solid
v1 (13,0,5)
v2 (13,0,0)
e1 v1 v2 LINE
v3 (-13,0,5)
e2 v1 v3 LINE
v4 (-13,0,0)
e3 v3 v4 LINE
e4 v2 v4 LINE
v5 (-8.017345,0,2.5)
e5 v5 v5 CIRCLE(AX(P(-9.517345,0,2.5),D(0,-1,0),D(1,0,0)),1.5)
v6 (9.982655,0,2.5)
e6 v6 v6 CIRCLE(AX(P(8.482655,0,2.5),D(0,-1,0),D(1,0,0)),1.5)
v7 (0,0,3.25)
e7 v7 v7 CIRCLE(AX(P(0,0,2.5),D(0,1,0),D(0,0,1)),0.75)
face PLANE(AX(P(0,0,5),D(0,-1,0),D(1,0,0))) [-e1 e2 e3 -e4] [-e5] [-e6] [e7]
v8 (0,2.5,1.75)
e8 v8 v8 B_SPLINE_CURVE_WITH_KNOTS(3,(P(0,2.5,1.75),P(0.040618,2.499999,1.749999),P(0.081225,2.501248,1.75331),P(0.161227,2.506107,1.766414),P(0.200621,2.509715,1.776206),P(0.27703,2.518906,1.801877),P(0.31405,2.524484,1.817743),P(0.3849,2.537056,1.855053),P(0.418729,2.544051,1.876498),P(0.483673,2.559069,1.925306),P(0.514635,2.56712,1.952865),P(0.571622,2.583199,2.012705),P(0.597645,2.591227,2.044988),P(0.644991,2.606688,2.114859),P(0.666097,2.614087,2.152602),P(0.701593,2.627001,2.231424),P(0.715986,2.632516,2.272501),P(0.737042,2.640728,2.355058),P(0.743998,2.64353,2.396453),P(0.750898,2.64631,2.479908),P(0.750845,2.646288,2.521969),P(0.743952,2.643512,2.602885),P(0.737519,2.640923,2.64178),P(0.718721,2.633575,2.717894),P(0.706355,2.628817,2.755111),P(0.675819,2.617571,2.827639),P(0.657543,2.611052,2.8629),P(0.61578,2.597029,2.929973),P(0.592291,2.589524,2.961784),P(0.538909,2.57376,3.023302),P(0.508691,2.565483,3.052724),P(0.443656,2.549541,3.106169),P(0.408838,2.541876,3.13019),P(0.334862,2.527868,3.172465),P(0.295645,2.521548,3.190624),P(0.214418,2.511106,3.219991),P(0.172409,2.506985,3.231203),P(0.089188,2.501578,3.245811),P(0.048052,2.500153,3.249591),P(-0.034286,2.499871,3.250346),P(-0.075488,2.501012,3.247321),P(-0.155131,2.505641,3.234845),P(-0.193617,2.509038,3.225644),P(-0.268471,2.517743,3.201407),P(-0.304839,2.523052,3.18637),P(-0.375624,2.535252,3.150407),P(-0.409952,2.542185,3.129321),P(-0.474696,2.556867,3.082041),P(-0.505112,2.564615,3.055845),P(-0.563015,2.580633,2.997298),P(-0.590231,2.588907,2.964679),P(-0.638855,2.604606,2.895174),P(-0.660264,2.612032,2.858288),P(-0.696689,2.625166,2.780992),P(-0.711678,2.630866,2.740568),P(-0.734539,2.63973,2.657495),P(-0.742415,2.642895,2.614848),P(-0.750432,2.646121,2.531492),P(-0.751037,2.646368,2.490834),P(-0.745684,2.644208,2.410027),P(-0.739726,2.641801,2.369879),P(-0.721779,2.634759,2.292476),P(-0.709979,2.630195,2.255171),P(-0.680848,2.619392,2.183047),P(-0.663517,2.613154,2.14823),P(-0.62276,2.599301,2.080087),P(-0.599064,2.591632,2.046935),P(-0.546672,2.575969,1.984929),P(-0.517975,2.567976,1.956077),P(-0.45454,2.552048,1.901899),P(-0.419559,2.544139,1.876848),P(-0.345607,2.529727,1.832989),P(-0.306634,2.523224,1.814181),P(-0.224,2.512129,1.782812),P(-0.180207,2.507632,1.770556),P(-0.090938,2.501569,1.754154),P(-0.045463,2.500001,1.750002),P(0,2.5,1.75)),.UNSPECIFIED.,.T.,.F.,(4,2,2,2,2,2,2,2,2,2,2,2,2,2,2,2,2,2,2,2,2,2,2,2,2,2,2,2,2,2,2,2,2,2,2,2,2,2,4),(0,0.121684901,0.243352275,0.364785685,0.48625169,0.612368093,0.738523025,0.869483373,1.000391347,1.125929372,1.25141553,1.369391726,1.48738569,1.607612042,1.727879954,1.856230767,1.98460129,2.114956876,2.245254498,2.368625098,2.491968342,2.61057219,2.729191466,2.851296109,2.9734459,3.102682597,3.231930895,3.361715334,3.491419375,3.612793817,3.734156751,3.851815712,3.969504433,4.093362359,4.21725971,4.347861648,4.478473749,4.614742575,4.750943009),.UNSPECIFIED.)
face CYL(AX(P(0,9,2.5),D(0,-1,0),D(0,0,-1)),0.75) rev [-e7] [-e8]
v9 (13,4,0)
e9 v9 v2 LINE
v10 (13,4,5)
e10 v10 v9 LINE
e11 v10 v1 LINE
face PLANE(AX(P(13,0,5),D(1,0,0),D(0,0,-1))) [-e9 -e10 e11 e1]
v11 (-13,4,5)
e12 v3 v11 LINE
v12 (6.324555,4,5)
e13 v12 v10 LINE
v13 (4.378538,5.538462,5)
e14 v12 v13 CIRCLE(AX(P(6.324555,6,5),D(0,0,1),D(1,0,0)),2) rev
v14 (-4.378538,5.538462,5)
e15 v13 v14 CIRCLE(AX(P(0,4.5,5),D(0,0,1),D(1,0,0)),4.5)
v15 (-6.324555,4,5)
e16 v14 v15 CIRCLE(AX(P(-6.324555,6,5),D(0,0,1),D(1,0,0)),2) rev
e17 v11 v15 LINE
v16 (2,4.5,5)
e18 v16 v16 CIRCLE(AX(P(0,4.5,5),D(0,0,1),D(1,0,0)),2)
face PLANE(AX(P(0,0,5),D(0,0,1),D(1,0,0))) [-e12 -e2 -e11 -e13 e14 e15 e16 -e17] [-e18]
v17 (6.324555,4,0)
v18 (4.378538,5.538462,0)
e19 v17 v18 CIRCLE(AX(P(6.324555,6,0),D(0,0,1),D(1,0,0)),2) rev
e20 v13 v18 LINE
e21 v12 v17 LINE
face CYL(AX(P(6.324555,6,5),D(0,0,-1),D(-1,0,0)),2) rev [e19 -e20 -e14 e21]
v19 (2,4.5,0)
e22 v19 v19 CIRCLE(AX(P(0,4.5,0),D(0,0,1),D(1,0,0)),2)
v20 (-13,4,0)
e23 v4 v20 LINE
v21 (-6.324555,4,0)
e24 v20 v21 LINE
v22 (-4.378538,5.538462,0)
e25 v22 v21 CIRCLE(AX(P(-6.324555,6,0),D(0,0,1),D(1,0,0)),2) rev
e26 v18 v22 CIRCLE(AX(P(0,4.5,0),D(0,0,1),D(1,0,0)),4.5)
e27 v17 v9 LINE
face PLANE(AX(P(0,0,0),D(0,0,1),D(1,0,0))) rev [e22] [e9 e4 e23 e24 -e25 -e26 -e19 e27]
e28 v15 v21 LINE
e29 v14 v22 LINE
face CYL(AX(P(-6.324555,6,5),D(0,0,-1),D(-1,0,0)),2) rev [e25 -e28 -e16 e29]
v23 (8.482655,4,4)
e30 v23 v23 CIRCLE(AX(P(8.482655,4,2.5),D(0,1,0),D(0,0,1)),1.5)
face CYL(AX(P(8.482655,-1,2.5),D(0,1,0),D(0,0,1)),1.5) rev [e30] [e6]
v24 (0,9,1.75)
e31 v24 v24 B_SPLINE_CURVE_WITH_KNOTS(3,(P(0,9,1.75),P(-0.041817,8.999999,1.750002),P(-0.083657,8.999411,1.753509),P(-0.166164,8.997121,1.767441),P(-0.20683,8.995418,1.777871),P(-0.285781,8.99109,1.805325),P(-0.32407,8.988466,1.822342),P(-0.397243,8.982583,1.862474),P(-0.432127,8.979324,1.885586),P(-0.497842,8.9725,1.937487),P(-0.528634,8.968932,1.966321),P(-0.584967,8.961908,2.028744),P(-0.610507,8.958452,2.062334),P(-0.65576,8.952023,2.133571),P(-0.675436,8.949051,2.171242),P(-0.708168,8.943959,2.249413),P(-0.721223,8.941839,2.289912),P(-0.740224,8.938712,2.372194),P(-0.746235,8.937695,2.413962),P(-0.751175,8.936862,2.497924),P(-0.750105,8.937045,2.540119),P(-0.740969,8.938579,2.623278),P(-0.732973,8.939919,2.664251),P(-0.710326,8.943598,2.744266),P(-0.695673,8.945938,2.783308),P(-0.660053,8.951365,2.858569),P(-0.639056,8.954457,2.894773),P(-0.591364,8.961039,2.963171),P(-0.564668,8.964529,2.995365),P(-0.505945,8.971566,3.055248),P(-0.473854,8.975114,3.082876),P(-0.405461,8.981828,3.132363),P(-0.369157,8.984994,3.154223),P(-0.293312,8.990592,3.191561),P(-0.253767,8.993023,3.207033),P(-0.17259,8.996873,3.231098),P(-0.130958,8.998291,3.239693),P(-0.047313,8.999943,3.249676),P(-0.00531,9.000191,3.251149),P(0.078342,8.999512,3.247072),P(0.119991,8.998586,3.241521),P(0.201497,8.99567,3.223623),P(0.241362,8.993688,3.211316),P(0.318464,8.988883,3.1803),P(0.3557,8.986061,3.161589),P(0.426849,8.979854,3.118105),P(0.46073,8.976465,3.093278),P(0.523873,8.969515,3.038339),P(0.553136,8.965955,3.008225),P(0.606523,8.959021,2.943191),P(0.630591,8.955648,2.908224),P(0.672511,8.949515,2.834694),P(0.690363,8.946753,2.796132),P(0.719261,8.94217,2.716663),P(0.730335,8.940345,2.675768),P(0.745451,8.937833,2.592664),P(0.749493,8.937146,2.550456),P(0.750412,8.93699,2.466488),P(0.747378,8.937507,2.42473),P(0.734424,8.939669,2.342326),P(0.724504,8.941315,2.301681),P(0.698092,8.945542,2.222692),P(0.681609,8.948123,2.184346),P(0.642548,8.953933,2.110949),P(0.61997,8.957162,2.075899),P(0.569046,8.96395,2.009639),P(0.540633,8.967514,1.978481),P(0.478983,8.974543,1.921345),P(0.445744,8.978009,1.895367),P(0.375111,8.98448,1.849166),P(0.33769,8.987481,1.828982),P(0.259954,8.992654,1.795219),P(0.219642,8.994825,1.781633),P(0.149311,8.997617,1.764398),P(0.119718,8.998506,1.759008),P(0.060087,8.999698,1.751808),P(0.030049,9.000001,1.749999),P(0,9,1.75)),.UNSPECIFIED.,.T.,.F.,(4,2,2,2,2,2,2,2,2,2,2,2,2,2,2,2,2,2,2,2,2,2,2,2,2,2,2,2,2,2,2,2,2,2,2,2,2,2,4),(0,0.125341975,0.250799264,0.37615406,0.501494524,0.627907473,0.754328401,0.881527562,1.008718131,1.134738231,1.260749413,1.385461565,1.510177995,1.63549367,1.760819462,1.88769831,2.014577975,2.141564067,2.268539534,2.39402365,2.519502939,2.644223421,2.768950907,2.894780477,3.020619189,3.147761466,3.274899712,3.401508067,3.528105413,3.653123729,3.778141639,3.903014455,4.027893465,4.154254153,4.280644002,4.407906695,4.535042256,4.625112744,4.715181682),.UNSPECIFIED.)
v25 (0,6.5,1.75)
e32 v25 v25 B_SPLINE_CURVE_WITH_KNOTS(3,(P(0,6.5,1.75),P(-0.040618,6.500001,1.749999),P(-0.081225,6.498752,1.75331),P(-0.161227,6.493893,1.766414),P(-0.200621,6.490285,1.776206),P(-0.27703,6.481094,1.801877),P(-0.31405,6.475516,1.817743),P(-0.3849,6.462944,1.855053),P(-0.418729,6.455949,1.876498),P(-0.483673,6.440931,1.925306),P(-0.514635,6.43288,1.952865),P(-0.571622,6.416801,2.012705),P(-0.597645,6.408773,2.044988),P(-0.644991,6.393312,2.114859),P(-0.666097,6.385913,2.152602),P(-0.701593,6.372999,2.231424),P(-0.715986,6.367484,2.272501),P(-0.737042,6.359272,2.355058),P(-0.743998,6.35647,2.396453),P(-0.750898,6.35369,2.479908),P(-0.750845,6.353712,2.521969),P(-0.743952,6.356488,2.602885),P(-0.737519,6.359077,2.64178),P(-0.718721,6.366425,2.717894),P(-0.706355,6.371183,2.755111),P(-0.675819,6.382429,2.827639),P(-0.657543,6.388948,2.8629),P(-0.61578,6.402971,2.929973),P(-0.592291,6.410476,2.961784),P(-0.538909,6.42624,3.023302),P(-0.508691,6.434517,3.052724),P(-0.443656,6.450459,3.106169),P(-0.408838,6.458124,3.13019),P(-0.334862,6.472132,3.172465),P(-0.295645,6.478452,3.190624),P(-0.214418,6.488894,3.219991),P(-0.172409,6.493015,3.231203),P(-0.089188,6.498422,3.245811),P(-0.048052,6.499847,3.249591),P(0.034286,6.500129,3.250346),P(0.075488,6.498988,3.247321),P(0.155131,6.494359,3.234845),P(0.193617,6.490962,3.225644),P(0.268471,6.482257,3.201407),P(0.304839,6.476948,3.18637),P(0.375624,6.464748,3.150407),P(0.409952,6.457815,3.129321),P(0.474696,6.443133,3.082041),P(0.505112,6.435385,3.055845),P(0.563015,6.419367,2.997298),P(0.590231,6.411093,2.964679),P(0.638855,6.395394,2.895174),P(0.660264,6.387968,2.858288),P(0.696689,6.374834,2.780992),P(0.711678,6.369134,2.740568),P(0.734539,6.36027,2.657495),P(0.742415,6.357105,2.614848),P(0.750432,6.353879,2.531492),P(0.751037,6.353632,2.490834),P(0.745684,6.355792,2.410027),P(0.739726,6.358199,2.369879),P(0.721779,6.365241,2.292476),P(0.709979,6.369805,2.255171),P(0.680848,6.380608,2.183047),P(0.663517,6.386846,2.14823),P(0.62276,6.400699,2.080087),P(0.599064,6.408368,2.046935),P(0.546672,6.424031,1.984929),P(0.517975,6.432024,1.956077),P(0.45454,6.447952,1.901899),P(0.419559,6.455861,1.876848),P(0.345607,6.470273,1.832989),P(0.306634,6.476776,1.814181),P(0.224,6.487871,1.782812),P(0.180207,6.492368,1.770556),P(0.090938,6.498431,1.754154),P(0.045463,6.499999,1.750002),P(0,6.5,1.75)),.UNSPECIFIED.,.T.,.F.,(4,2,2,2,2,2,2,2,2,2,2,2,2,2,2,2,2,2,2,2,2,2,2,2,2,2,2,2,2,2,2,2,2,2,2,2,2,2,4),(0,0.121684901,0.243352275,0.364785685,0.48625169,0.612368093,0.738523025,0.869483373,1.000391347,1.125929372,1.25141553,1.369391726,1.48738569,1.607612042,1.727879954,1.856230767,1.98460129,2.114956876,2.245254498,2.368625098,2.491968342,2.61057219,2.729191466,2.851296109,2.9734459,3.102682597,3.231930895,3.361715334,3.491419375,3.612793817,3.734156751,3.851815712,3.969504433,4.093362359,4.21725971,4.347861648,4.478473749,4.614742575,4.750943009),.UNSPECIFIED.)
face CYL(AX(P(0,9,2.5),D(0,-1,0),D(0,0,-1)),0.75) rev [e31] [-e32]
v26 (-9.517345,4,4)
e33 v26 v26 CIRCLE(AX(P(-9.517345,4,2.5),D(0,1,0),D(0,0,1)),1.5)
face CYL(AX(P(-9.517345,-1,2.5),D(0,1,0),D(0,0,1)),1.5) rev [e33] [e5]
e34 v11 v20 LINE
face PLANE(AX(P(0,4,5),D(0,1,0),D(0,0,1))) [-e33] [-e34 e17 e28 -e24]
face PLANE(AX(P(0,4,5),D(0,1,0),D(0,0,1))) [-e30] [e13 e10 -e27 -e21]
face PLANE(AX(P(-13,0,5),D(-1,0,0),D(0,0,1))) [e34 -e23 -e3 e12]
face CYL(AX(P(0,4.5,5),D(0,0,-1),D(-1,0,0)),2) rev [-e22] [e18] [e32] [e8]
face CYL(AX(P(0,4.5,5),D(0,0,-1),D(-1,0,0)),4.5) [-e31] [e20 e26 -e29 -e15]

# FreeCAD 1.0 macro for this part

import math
import FreeCAD as App
import Part
import Sketcher

V = App.Vector
Q = App.Units.Quantity

doc = App.newDocument("Part")
body = doc.addObject("PartDesign::Body", "Body")

# Sketch on XY plane
sketch1 = body.newObject("Sketcher::SketchObject", "Sketch")
sketch1.AttachmentSupport = (doc.getObject("XY_Plane"), [""])
sketch1.MapMode = "FlatFace"
sketch1.addGeometry([
    Part.LineSegment(V(-13, 0, 0), V(13, 0, 0)),  # 0
    Part.LineSegment(V(13, 0, 0), V(13, 4, 0)),  # 1
    Part.LineSegment(V(13, 4, 0), V(6.3, 4, 0)),  # 2
    Part.ArcOfCircle(Part.Circle(V(6.3, 6, 0), V(0, 0, 1), 2), math.radians(-167), math.radians(-90)),  # 3
    Part.ArcOfCircle(Part.Circle(V(0, 4.5, 0), V(0, 0, 1), 4.5), math.radians(13), math.radians(90)),  # 4
    Part.ArcOfCircle(Part.Circle(V(0, 4.5, 0), V(0, 0, 1), 4.5), math.radians(90), math.radians(167)),  # 5
    Part.ArcOfCircle(Part.Circle(V(-6.3, 6, 0), V(0, 0, 1), 2), math.radians(-90), math.radians(-13)),  # 6
    Part.LineSegment(V(-6.3, 4, 0), V(-13, 4, 0)),  # 7
    Part.LineSegment(V(-13, 4, 0), V(-13, 0, 0)),  # 8
    Part.ArcOfCircle(Part.Circle(V(0, 4.5, 0), V(0, 0, 1), 2), math.radians(90), math.radians(270)),  # 9
    Part.ArcOfCircle(Part.Circle(V(0, 4.5, 0), V(0, 0, 1), 2), math.radians(0), math.radians(90)),  # 10
    Part.ArcOfCircle(Part.Circle(V(0, 4.5, 0), V(0, 0, 1), 2), math.radians(-90), math.radians(0)),  # 11
], False)
sketch1.addConstraint([
    Sketcher.Constraint("Coincident", 0, 2, 1, 1),
    Sketcher.Constraint("Coincident", 1, 2, 2, 1),
    Sketcher.Constraint("Tangent", 2, 2, 3, 2),
    Sketcher.Constraint("Tangent", 3, 1, 4, 1),
    Sketcher.Constraint("Tangent", 4, 2, 5, 1),
    Sketcher.Constraint("Tangent", 5, 2, 6, 2),
    Sketcher.Constraint("Tangent", 6, 1, 7, 1),
    Sketcher.Constraint("Coincident", 7, 2, 8, 1),
    Sketcher.Constraint("Coincident", 8, 2, 0, 1),
    Sketcher.Constraint("Tangent", 9, 1, 10, 2),
    Sketcher.Constraint("Tangent", 10, 1, 11, 2),
    Sketcher.Constraint("Tangent", 11, 1, 9, 2),
    Sketcher.Constraint("Horizontal", 0),
    Sketcher.Constraint("Vertical", 1),
    Sketcher.Constraint("Horizontal", 2),
    Sketcher.Constraint("Horizontal", 7),
    Sketcher.Constraint("Vertical", 8),
    Sketcher.Constraint("Coincident", 9, 3, 4, 3),
    Sketcher.Constraint("Equal", 4, 5),
    Sketcher.Constraint("Equal", 3, 6),
    Sketcher.Constraint("Equal", 6, 9),
    Sketcher.Constraint("Symmetric", 0, 2, 8, 2, -1, 1),
    Sketcher.Constraint("Symmetric", 3, 3, 6, 3, -2),
    Sketcher.Constraint("PointOnObject", 4, 2, -2),
    Sketcher.Constraint("PointOnObject", 9, 1, -2),
    Sketcher.Constraint("PointOnObject", 11, 1, -2),
    Sketcher.Constraint("Horizontal", 11, 3, 10, 1),
    Sketcher.Constraint("Radius", 3, Q("2 mm")),
    Sketcher.Constraint("Radius", 4, Q("4.5 mm")),
    Sketcher.Constraint("DistanceX", 0, 1, 0, 2, Q("26 mm")),
    Sketcher.Constraint("DistanceY", 1, 1, 1, 2, Q("4 mm")),
    Sketcher.Constraint("DistanceY", -1, 1, 4, 2, Q("9 mm")),
])
pad1 = body.newObject("PartDesign::Pad", "Pad")
pad1.Profile = sketch1
pad1.Length = 5

# Sketch on XZ plane
sketch2 = body.newObject("Sketcher::SketchObject", "Sketch001")
sketch2.AttachmentSupport = (doc.getObject("XZ_Plane"), [""])
sketch2.MapMode = "FlatFace"
sketch2.AttachmentOffset = App.Placement(V(0, 0, -4), App.Rotation())
sketch2.addGeometry([
    Part.Circle(V(-9.5, 2.5, 0), V(0, 0, 1), 1.5),
    Part.Circle(V(8.5, 2.5, 0), V(0, 0, 1), 1.5),
], False)
sketch2.addConstraint([
    Sketcher.Constraint("Equal", 0, 1),
    Sketcher.Constraint("Horizontal", 0, 3, 1, 3),
    Sketcher.Constraint("Diameter", 0, Q("3 mm")),
    Sketcher.Constraint("DistanceX", 0, 3, 1, 3, Q("18 mm")),
    Sketcher.Constraint("DistanceY", -1, 1, 0, 3, Q("2.5 mm")),
    Sketcher.Constraint("DistanceX", 0, 3, -1, 1, Q("9.517345 mm")),
])
pocket1 = body.newObject("PartDesign::Pocket", "Pocket")
pocket1.Profile = sketch2
pocket1.Length = 5
pocket1.Reversed = True

# Sketch on XZ plane
sketch3 = body.newObject("Sketcher::SketchObject", "Sketch002")
sketch3.AttachmentSupport = (doc.getObject("XZ_Plane"), [""])
sketch3.MapMode = "FlatFace"
sketch3.AttachmentOffset = App.Placement(V(0, 0, -4), App.Rotation())
sketch3.addGeometry(Part.Circle(V(0, 2.5, 0), V(0, 0, 1), 0.8), False)
sketch3.addConstraint([
    Sketcher.Constraint("PointOnObject", 0, 3, -2),
    Sketcher.Constraint("Diameter", 0, Q("1.5 mm")),
    Sketcher.Constraint("DistanceY", -1, 1, 0, 3, Q("2.5 mm")),
])
pocket2 = body.newObject("PartDesign::Pocket", "Pocket001")
pocket2.Profile = sketch3
pocket2.Type = "ThroughAll"
pocket2.Midplane = True

doc.recompute()
